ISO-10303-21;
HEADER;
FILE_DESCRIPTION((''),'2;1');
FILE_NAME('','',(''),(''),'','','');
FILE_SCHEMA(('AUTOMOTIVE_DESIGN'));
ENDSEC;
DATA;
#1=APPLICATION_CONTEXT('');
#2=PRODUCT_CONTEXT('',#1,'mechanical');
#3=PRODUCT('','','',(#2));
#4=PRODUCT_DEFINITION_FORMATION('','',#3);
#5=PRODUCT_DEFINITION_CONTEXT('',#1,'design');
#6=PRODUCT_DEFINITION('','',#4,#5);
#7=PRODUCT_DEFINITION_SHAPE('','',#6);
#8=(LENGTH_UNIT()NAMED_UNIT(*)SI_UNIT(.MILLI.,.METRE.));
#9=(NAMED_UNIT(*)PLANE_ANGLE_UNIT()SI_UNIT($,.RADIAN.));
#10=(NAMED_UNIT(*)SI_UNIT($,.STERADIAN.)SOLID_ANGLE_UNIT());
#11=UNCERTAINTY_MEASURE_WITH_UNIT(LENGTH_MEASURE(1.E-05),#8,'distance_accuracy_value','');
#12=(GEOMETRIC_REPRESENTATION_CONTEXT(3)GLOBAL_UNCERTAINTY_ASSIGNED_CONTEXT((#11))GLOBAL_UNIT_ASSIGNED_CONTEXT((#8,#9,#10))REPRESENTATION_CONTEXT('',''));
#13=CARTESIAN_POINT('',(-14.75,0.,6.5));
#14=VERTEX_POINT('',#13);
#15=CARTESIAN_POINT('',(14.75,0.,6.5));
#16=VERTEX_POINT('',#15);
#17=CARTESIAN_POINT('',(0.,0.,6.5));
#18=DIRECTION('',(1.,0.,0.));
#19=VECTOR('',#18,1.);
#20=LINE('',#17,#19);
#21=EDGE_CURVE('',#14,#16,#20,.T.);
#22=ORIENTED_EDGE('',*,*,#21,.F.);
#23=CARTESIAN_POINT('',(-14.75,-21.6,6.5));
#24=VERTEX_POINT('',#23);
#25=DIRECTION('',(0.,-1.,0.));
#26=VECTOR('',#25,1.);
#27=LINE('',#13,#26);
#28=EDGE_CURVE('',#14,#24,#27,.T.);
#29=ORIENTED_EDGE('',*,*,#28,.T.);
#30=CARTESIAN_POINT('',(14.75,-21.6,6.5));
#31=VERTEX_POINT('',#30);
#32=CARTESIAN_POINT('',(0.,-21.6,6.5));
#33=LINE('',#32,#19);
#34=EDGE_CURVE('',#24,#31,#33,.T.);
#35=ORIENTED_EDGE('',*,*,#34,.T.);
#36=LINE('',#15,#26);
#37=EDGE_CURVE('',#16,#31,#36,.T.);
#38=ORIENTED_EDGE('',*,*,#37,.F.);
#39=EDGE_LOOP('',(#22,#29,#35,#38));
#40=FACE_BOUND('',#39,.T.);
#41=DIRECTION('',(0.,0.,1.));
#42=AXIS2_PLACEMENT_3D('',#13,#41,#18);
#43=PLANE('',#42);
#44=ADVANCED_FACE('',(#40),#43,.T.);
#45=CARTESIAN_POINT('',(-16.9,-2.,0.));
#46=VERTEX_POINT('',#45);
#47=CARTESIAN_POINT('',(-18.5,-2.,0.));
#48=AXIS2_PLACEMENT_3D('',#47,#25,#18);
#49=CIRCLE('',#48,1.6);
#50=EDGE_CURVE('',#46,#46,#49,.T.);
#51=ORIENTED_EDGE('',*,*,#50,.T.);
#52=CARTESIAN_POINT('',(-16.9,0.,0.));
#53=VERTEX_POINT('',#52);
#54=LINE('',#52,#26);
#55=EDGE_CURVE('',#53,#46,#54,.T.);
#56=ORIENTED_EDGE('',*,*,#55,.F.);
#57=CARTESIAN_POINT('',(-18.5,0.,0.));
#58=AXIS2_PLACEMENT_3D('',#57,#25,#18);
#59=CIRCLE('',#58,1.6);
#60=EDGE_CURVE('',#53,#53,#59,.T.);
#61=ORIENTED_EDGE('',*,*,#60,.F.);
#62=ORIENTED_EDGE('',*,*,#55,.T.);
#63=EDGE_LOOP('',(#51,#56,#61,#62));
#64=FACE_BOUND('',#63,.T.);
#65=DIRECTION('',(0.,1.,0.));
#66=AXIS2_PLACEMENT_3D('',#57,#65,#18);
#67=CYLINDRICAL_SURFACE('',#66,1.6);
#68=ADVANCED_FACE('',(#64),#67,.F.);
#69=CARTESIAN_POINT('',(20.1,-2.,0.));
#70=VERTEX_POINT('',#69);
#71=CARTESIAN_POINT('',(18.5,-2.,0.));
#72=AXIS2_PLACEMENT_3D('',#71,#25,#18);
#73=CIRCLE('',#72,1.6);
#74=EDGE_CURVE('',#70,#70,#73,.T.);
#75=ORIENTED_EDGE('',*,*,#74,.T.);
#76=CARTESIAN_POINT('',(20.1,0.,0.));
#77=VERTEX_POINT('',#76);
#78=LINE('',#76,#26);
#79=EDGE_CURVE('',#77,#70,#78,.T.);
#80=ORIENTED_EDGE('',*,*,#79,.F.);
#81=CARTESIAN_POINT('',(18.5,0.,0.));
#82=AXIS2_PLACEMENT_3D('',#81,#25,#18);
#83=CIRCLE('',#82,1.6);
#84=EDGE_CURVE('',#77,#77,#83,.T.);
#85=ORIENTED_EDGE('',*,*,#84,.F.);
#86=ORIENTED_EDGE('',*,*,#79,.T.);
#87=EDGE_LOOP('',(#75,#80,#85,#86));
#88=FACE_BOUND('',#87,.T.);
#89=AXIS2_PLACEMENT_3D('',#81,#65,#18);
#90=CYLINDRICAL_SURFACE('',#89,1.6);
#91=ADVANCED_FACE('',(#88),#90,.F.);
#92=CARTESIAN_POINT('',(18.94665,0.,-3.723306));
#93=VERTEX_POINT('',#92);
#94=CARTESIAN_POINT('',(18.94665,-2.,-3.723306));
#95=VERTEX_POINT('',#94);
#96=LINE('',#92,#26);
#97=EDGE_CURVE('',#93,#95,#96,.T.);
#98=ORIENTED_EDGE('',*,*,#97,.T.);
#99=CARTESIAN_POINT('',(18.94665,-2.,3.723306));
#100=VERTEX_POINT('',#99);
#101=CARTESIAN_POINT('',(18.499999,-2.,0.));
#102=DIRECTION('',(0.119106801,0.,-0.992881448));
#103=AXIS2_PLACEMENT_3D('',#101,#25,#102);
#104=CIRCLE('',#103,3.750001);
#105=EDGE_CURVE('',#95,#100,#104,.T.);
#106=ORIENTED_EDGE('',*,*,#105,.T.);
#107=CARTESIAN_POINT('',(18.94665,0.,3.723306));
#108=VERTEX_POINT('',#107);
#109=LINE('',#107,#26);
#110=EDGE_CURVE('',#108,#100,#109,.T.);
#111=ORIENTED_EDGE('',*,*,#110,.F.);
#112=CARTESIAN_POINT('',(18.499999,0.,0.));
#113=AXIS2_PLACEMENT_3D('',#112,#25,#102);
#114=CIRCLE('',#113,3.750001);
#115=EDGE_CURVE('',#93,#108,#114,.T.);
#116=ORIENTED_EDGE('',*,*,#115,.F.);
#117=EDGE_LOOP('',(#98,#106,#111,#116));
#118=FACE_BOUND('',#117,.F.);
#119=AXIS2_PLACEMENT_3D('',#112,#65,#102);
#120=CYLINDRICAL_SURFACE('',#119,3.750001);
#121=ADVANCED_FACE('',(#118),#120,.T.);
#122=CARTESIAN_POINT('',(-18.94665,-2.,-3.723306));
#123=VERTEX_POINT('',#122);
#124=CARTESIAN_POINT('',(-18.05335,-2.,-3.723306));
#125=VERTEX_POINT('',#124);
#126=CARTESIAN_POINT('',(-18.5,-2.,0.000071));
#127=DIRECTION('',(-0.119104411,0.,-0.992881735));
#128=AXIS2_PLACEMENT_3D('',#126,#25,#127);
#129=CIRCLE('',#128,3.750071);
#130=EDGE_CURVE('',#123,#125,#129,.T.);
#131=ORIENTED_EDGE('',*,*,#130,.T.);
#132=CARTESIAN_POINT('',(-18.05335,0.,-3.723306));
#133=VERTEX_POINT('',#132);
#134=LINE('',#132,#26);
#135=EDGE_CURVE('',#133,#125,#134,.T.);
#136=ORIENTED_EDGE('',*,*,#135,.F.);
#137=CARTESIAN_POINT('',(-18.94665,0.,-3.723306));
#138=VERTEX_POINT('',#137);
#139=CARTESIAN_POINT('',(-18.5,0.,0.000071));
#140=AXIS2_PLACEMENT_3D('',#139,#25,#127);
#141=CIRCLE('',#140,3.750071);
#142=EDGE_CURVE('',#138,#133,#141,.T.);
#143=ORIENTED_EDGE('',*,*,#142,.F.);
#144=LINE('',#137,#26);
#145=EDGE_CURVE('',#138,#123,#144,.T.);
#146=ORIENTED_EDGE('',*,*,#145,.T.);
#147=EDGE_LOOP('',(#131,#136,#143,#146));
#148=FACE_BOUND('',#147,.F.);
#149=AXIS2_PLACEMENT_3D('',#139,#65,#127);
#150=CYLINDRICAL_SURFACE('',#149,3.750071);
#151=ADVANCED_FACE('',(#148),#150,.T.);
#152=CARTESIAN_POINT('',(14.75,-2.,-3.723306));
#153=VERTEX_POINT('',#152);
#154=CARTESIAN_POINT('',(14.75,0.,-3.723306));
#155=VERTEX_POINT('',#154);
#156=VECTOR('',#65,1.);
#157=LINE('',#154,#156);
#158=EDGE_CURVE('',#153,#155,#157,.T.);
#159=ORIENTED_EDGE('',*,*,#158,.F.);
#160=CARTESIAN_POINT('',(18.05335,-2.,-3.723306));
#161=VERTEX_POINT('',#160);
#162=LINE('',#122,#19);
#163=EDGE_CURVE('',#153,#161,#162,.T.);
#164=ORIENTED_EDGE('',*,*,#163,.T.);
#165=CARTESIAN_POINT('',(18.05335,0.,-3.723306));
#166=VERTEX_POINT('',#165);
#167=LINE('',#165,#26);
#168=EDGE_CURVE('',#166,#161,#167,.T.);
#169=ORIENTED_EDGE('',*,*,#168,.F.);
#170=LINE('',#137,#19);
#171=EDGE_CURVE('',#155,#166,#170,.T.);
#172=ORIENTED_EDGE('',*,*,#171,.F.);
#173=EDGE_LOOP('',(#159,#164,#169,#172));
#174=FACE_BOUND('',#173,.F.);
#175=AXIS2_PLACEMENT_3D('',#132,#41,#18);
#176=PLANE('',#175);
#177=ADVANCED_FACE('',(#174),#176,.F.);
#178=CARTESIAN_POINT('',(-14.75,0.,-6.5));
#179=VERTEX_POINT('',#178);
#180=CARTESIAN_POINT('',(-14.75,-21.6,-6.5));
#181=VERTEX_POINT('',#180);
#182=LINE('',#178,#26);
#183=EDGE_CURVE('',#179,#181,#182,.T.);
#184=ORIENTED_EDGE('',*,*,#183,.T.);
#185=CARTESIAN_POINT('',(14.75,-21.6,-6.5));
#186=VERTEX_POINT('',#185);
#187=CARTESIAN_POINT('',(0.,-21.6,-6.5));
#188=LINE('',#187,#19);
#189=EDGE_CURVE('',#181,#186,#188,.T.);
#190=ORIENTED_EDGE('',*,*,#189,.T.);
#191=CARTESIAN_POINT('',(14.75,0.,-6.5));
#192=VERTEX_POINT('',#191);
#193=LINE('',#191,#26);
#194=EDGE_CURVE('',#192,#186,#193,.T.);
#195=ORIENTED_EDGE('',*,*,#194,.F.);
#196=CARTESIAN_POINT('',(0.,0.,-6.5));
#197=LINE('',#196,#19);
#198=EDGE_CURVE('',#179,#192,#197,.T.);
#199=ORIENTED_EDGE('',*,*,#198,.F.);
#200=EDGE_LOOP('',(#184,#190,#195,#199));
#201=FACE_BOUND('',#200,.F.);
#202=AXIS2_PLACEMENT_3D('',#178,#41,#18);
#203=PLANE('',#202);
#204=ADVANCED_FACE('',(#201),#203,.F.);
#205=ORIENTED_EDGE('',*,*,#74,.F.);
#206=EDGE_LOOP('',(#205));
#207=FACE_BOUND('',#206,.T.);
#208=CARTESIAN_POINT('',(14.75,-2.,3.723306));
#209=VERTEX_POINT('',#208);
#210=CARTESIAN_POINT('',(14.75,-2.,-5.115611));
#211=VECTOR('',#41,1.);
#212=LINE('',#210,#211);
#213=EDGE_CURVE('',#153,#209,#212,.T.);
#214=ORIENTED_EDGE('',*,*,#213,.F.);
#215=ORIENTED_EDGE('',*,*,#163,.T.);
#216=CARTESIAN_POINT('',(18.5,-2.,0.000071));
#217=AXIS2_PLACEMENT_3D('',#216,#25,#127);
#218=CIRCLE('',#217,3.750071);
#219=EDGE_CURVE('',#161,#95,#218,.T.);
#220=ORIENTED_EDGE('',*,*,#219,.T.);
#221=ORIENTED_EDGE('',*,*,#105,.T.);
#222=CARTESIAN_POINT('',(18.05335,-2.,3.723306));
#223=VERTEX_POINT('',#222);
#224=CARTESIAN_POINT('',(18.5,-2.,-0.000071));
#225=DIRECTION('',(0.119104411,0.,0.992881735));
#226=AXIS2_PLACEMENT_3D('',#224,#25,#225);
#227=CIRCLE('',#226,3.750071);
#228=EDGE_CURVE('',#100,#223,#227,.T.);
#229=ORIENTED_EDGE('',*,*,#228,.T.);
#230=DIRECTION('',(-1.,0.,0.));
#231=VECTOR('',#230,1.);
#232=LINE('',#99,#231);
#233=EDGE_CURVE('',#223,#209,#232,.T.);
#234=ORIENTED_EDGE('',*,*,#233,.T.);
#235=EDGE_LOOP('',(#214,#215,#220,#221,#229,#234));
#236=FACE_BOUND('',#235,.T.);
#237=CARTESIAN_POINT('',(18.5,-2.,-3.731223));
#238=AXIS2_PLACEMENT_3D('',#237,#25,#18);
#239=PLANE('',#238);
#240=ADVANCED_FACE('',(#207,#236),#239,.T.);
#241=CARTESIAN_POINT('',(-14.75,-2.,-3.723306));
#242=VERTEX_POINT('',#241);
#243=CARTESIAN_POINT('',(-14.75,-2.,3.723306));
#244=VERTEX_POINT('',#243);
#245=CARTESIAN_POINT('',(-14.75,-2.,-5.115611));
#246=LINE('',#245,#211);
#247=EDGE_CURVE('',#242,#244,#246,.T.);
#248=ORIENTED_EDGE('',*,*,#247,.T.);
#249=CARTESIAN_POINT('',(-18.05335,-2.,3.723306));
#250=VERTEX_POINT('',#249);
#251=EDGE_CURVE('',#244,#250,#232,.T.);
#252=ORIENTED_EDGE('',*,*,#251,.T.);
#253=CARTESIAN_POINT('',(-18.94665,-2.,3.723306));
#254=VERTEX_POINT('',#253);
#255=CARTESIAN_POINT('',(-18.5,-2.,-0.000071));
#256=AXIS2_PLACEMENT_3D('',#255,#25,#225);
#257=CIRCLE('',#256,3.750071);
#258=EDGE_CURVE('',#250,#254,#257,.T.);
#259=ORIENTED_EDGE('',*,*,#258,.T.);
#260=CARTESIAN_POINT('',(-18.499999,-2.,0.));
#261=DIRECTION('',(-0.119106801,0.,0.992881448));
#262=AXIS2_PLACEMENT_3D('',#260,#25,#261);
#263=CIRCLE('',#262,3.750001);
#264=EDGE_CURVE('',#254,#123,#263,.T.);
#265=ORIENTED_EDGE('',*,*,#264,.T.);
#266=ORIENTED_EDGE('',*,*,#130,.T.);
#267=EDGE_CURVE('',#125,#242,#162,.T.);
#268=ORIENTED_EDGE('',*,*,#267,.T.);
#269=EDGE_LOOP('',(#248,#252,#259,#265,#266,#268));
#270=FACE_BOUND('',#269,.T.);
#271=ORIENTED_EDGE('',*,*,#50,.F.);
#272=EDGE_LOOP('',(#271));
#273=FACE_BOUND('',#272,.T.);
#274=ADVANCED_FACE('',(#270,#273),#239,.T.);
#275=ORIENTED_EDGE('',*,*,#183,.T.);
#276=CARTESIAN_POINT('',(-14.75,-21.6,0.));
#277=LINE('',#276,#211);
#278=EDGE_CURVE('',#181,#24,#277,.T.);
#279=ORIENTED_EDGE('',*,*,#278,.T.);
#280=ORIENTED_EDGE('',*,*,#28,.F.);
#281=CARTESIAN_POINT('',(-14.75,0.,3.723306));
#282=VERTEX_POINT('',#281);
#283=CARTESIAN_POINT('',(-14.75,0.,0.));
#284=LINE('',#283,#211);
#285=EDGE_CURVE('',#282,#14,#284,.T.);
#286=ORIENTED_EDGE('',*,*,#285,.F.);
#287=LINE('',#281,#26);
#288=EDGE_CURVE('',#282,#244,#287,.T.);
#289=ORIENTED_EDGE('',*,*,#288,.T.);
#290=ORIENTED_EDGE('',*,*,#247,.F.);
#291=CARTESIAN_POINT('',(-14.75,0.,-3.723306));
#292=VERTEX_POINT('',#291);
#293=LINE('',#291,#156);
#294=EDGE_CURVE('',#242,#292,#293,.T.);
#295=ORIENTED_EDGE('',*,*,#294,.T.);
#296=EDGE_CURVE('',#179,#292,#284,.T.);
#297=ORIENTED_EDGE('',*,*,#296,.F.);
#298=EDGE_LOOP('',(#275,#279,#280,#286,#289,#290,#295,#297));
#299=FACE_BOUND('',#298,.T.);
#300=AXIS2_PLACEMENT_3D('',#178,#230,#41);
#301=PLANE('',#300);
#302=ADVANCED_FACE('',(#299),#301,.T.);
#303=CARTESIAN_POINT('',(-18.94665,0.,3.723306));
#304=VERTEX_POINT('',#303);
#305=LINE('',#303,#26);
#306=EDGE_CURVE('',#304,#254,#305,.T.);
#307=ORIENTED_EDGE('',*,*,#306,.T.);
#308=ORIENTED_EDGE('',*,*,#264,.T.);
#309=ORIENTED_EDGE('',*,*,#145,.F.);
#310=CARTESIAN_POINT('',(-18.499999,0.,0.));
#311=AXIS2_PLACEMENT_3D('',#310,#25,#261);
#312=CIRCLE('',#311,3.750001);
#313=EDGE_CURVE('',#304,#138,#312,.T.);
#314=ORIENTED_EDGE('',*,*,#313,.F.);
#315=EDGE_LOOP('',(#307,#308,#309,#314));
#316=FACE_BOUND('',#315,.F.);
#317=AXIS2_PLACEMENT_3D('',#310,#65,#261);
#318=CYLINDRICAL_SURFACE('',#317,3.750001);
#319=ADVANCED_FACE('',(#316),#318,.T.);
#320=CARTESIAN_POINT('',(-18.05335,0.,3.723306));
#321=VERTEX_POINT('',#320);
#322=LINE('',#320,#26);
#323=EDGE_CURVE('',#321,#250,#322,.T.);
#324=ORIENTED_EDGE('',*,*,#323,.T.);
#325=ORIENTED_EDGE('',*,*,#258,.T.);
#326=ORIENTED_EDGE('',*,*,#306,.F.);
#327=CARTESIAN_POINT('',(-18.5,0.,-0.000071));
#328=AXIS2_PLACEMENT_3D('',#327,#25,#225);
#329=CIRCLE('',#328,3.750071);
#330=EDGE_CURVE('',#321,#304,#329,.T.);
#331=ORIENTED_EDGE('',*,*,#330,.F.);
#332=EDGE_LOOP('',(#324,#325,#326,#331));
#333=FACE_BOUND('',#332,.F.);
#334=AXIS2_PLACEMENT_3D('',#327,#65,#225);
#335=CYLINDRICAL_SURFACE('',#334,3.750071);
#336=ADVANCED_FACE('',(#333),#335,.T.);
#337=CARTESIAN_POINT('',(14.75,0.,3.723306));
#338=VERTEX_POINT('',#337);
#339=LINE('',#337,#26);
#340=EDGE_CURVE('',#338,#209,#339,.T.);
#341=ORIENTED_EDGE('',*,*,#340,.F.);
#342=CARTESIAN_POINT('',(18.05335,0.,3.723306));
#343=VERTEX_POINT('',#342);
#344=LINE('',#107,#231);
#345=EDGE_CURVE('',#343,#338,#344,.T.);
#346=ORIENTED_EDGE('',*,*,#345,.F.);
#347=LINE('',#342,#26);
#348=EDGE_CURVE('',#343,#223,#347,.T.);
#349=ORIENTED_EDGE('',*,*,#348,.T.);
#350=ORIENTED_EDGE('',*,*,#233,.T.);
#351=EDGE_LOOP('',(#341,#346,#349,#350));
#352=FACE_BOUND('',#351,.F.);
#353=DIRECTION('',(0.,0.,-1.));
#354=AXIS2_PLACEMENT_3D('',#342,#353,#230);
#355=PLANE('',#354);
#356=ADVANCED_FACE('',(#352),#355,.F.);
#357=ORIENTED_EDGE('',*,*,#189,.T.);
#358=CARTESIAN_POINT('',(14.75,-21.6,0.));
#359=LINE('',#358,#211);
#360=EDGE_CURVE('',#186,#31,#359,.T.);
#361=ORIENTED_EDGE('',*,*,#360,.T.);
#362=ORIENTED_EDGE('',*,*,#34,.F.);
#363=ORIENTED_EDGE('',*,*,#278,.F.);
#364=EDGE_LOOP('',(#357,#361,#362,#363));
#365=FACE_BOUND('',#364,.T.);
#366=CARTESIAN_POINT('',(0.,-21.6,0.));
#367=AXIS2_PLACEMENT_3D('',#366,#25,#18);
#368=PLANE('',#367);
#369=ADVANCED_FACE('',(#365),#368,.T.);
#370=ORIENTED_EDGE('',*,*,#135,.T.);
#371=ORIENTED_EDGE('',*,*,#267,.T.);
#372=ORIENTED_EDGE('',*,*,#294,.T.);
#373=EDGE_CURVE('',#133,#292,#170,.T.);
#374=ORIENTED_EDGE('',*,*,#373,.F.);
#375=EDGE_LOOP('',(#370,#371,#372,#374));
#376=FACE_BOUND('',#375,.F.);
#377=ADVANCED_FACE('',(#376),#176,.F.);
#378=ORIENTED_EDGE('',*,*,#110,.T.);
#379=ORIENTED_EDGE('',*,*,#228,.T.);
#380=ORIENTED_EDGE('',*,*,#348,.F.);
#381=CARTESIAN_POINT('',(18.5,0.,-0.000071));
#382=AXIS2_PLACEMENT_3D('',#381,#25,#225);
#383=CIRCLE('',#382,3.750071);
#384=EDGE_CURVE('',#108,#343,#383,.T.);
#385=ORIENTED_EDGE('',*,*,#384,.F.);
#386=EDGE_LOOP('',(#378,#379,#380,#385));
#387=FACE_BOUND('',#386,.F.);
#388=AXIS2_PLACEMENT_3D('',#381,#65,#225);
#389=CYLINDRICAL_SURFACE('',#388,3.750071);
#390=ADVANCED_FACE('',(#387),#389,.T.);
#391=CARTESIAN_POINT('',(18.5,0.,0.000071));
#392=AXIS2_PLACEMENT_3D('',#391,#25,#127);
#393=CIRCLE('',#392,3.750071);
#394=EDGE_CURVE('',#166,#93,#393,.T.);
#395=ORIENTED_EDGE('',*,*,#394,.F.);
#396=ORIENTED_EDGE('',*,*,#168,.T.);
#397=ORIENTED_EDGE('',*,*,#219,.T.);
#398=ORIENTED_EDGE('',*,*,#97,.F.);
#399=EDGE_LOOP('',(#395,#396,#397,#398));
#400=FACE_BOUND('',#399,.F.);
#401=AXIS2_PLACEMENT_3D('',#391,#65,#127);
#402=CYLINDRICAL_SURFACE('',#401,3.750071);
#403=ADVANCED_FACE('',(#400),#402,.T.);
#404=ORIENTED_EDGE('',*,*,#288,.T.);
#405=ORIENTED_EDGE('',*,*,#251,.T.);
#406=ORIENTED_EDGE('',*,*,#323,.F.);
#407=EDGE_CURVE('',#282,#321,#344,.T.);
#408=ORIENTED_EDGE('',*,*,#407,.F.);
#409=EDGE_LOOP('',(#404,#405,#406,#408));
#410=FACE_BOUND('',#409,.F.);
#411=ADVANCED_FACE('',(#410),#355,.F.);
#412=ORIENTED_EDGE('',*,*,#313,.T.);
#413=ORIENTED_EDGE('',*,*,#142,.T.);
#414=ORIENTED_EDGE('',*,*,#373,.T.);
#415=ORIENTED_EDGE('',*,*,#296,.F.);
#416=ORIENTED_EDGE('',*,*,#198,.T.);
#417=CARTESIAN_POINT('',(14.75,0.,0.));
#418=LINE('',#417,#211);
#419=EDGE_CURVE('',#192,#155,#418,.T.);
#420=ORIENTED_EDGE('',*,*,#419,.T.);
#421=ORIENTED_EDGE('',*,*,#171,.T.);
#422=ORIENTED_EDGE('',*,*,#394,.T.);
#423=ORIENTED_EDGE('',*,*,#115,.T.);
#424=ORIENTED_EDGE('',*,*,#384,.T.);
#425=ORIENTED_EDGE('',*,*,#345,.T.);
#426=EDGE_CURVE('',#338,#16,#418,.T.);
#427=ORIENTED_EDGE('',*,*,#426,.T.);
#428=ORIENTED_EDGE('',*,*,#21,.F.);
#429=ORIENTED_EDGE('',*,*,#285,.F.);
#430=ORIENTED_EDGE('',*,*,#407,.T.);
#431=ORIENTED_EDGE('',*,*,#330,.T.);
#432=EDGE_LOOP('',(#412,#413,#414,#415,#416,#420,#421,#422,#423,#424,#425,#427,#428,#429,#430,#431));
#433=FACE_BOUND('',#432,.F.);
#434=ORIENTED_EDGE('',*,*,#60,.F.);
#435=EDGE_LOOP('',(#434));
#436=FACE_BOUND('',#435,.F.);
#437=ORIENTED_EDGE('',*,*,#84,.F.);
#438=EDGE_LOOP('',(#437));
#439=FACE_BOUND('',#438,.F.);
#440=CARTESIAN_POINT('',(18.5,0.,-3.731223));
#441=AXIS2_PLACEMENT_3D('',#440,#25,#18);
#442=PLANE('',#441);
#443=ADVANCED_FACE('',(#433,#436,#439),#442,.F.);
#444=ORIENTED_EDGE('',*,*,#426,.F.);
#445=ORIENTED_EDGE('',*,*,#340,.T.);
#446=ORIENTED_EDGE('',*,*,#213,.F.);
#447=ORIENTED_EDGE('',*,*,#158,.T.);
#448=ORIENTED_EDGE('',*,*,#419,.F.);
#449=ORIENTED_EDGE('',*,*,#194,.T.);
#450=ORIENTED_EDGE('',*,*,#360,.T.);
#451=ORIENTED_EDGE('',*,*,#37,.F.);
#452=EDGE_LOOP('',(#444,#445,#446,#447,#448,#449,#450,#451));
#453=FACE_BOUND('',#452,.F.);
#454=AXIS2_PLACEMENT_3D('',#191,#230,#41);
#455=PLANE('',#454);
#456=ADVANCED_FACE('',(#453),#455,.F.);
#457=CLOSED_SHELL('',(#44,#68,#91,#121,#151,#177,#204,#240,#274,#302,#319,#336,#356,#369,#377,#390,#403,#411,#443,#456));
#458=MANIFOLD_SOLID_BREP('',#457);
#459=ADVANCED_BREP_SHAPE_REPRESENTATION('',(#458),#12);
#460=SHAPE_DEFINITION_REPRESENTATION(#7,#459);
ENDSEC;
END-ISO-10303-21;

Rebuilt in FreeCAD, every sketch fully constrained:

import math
import FreeCAD as App
import Part
import Sketcher
Q = App.Units.Quantity

doc = App.newDocument("Part")
body = doc.addObject("PartDesign::Body", "Body")

sketch1 = body.newObject("Sketcher::SketchObject", "Sketch")
sketch1.AttachmentSupport = (doc.getObject("XZ_Plane"), [""])
sketch1.MapMode = "FlatFace"
sketch1.addGeometry([
    Part.LineSegment(App.Vector(-15, 6, 0), App.Vector(-15, -6, 0)),
    Part.LineSegment(App.Vector(-15, -6, 0), App.Vector(15, -6, 0)),
    Part.LineSegment(App.Vector(15, -6, 0), App.Vector(15, 6, 0)),
    Part.LineSegment(App.Vector(15, 6, 0), App.Vector(-15, 6, 0)),
], False)
sketch1.addConstraint([
    Sketcher.Constraint("Coincident", 0, 2, 1, 1),
    Sketcher.Constraint("Coincident", 1, 2, 2, 1),
    Sketcher.Constraint("Coincident", 2, 2, 3, 1),
    Sketcher.Constraint("Coincident", 3, 2, 0, 1),
    Sketcher.Constraint("Vertical", 0),
    Sketcher.Constraint("Horizontal", 1),
    Sketcher.Constraint("Vertical", 2),
    Sketcher.Constraint("Horizontal", 3),
    Sketcher.Constraint("Symmetric", 0, 2, 2, 2, -1, 1),
    Sketcher.Constraint("DistanceY", 0, 2, 0, 1, Q("13 mm")),
    Sketcher.Constraint("DistanceX", 1, 1, 1, 2, Q("29.5 mm")),
])
pad1 = body.newObject("PartDesign::Pad", "Pad")
pad1.Profile = sketch1
pad1.Length = 21.6

sketch2 = body.newObject("Sketcher::SketchObject", "Sketch001")
sketch2.AttachmentSupport = (doc.getObject("XZ_Plane"), [""])
sketch2.MapMode = "FlatFace"
sketch2.addGeometry([
    Part.ArcOfCircle(Part.Circle(App.Vector(18.5, 0, 0), App.Vector(0, 0, 1), 3.8), math.radians(-96.84), math.radians(-83.16)),
    Part.ArcOfCircle(Part.Circle(App.Vector(18.5, 0, 0), App.Vector(0, 0, 1), 3.8), math.radians(-83), math.radians(83)),
    Part.ArcOfCircle(Part.Circle(App.Vector(18.5, 0, 0), App.Vector(0, 0, 1), 3.8), math.radians(83.16), math.radians(96.84)),
    Part.LineSegment(App.Vector(18.1, 3.7, 0), App.Vector(-18.1, 3.7, 0)),
    Part.ArcOfCircle(Part.Circle(App.Vector(-18.5, 0, 0), App.Vector(0, 0, 1), 3.8), math.radians(83.16), math.radians(96.84)),
    Part.ArcOfCircle(Part.Circle(App.Vector(-18.5, 0, 0), App.Vector(0, 0, 1), 3.8), math.radians(97), math.radians(263)),
    Part.ArcOfCircle(Part.Circle(App.Vector(-18.5, 0, 0), App.Vector(0, 0, 1), 3.8), math.radians(-96.84), math.radians(-83.16)),
    Part.LineSegment(App.Vector(-18.1, -3.7, 0), App.Vector(18.1, -3.7, 0)),
    Part.Circle(App.Vector(-18.5, 0, 0), App.Vector(0, 0, 1), 1.6),
    Part.Circle(App.Vector(18.5, 0, 0), App.Vector(0, 0, 1), 1.6),
], False)
sketch2.addConstraint([
    Sketcher.Constraint("Coincident", 0, 2, 1, 1),
    Sketcher.Constraint("Coincident", 1, 2, 2, 1),
    Sketcher.Constraint("Coincident", 2, 2, 3, 1),
    Sketcher.Constraint("Coincident", 3, 2, 4, 1),
    Sketcher.Constraint("Coincident", 4, 2, 5, 1),
    Sketcher.Constraint("Coincident", 5, 2, 6, 1),
    Sketcher.Constraint("Coincident", 6, 2, 7, 1),
    Sketcher.Constraint("Coincident", 7, 2, 0, 1),
    Sketcher.Constraint("Horizontal", 3),
    Sketcher.Constraint("Horizontal", 7),
    Sketcher.Constraint("Coincident", 8, 3, 5, 3),
    Sketcher.Constraint("Coincident", 9, 3, 1, 3),
    Sketcher.Constraint("Equal", 0, 2),
    Sketcher.Constraint("Equal", 2, 4),
    Sketcher.Constraint("Equal", 1, 5),
    Sketcher.Constraint("Equal", 4, 6),
    Sketcher.Constraint("Equal", 8, 9),
    Sketcher.Constraint("Symmetric", 0, 3, 4, 3, -1, 1),
    Sketcher.Constraint("Symmetric", 2, 3, 6, 3, -1, 1),
    Sketcher.Constraint("Symmetric", 2, 3, 4, 3, -2),
    Sketcher.Constraint("Horizontal", 1, 2, 2, 2),
    Sketcher.Constraint("Horizontal", 3, 2, 4, 2),
    Sketcher.Constraint("Horizontal", 0, 2, 5, 2),
    Sketcher.Constraint("Horizontal", 5, 2, 6, 2),
    Sketcher.Constraint("Vertical", 0, 3, 1, 3),
    Sketcher.Constraint("Vertical", 0, 2, 1, 2),
    Sketcher.Constraint("Diameter", 8, Q("3.2 mm")),
    Sketcher.Constraint("Radius", 1, Q("3.750001 mm")),
    Sketcher.Constraint("DistanceX", 4, 3, 1, 3, Q("36.999999 mm")),
    Sketcher.Constraint("Radius", 0, Q("3.750071 mm")),
    Sketcher.Constraint("DistanceX", 3, 2, 3, 1, Q("36.1067 mm")),
])
pad2 = body.newObject("PartDesign::Pad", "Pad001")
pad2.Profile = sketch2
pad2.Length = 2

doc.recompute()
